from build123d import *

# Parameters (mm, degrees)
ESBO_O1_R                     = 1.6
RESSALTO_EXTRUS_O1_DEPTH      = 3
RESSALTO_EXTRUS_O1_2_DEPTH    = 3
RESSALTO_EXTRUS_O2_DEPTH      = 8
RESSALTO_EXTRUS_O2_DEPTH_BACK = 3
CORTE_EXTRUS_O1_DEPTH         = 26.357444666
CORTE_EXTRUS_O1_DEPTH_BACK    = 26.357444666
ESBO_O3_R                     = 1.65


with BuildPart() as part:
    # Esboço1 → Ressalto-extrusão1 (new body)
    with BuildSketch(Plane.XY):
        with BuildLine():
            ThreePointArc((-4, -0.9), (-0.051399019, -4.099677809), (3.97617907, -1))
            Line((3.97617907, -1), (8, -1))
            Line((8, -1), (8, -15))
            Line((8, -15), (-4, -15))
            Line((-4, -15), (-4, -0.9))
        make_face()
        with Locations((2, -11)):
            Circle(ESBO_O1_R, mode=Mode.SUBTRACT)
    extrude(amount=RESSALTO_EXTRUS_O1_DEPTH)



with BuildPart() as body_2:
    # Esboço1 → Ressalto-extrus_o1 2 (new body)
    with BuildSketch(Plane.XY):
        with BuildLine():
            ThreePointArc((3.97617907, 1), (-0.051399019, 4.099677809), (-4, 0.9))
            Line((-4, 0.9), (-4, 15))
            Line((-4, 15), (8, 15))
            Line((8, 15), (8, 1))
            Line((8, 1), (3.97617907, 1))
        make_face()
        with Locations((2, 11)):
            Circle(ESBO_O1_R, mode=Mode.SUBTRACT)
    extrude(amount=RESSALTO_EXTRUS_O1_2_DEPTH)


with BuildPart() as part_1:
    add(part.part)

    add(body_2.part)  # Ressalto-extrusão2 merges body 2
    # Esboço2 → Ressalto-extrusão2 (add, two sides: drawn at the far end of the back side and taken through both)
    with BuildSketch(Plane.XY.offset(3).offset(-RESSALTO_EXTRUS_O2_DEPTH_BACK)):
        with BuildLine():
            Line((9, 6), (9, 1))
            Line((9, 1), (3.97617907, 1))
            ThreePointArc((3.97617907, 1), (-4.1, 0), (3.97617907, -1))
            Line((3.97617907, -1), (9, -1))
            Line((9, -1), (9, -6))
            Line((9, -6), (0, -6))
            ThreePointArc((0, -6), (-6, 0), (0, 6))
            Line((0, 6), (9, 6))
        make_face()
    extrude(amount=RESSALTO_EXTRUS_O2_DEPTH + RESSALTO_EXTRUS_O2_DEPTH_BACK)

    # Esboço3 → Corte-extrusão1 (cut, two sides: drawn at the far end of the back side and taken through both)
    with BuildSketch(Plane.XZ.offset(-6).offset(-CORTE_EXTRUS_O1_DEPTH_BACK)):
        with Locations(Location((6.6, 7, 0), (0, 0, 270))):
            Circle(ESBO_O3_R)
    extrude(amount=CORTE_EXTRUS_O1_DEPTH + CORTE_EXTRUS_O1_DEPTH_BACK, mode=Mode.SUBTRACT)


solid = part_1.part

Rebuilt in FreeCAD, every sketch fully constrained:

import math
import FreeCAD as App
import Part
import Sketcher

V = App.Vector
Q = App.Units.Quantity

doc = App.newDocument("Part")
body = doc.addObject("PartDesign::Body", "Body")

# Sketch on XY plane
sketch1 = doc.addObject("Sketcher::SketchObject", "Sketch")
body.addObject(sketch1)
sketch1.AttachmentSupport = (doc.XY_Plane, [""])
sketch1.MapMode = "FlatFace"
sketch1.addGeometry(Part.ArcOfCircle(Part.Circle(V(0, 0, 0), V(0, 0, 1), 4.1), math.radians(-167), math.radians(-14)), False)
sketch1.addGeometry(Part.LineSegment(V(-4, -0.9, 0), V(-4, -15, 0)), False)
sketch1.addGeometry(Part.LineSegment(V(-4, -15, 0), V(8, -15, 0)), False)
sketch1.addGeometry(Part.LineSegment(V(8, -15, 0), V(8, -1, 0)), False)
sketch1.addGeometry(Part.LineSegment(V(8, -1, 0), V(4, -1, 0)), False)
sketch1.addGeometry(Part.Circle(V(2, -11, 0), V(0, 0, 1), 1.6), False)
sketch1.addConstraint(Sketcher.Constraint("Coincident", 0, 1, 1, 1))
sketch1.addConstraint(Sketcher.Constraint("Coincident", 1, 2, 2, 1))
sketch1.addConstraint(Sketcher.Constraint("Coincident", 2, 2, 3, 1))
sketch1.addConstraint(Sketcher.Constraint("Coincident", 3, 2, 4, 1))
sketch1.addConstraint(Sketcher.Constraint("Coincident", 4, 2, 0, 2))
sketch1.addConstraint(Sketcher.Constraint("Vertical", 1))
sketch1.addConstraint(Sketcher.Constraint("Horizontal", 2))
sketch1.addConstraint(Sketcher.Constraint("Vertical", 3))
sketch1.addConstraint(Sketcher.Constraint("Horizontal", 4))
sketch1.addConstraint(Sketcher.Constraint("Coincident", 0, 3, -1, 1))
sketch1.addConstraint(Sketcher.Constraint("Diameter", 5, Q("3.2 mm")))
sketch1.addConstraint(Sketcher.Constraint("Radius", 0, Q("4.1 mm")))
sketch1.addConstraint(Sketcher.Constraint("DistanceX", 2, 1, 2, 2, Q("12 mm")))
sketch1.addConstraint(Sketcher.Constraint("DistanceY", 3, 1, 3, 2, Q("14 mm")))
sketch1.addConstraint(Sketcher.Constraint("DistanceY", 1, 2, 1, 1, Q("14.1 mm")))
sketch1.addConstraint(Sketcher.Constraint("DistanceX", -1, 1, 5, 3, Q("2 mm")))
sketch1.addConstraint(Sketcher.Constraint("DistanceY", 5, 3, -1, 1, Q("11 mm")))
sketch1.addConstraint(Sketcher.Constraint("DistanceX", 0, 1, -1, 1, Q("4 mm")))
pad1 = doc.addObject("PartDesign::Pad", "Pad")
body.addObject(pad1)
pad1.Profile = sketch1
pad1.Length = 3
body2 = doc.addObject("PartDesign::Body", "Body001")

# Sketch on XY plane
sketch2 = doc.addObject("Sketcher::SketchObject", "Sketch001")
body2.addObject(sketch2)
sketch2.AttachmentSupport = (doc.getObject("XY_Plane001"), [""])
sketch2.MapMode = "FlatFace"
sketch2.addGeometry(Part.ArcOfCircle(Part.Circle(V(0, 0, 0), V(0, 0, 1), 4.1), math.radians(14), math.radians(167)), False)
sketch2.addGeometry(Part.LineSegment(V(4, 1, 0), V(8, 1, 0)), False)
sketch2.addGeometry(Part.LineSegment(V(8, 1, 0), V(8, 15, 0)), False)
sketch2.addGeometry(Part.LineSegment(V(8, 15, 0), V(-4, 15, 0)), False)
sketch2.addGeometry(Part.LineSegment(V(-4, 15, 0), V(-4, 0.9, 0)), False)
sketch2.addGeometry(Part.Circle(V(2, 11, 0), V(0, 0, 1), 1.6), False)
sketch2.addConstraint(Sketcher.Constraint("Coincident", 0, 1, 1, 1))
sketch2.addConstraint(Sketcher.Constraint("Coincident", 1, 2, 2, 1))
sketch2.addConstraint(Sketcher.Constraint("Coincident", 2, 2, 3, 1))
sketch2.addConstraint(Sketcher.Constraint("Coincident", 3, 2, 4, 1))
sketch2.addConstraint(Sketcher.Constraint("Coincident", 4, 2, 0, 2))
sketch2.addConstraint(Sketcher.Constraint("Horizontal", 1))
sketch2.addConstraint(Sketcher.Constraint("Vertical", 2))
sketch2.addConstraint(Sketcher.Constraint("Horizontal", 3))
sketch2.addConstraint(Sketcher.Constraint("Vertical", 4))
sketch2.addConstraint(Sketcher.Constraint("Coincident", 0, 3, -1, 1))
sketch2.addConstraint(Sketcher.Constraint("Diameter", 5, Q("3.2 mm")))
sketch2.addConstraint(Sketcher.Constraint("Radius", 0, Q("4.1 mm")))
sketch2.addConstraint(Sketcher.Constraint("DistanceX", 3, 2, 3, 1, Q("12 mm")))
sketch2.addConstraint(Sketcher.Constraint("DistanceY", 2, 1, 2, 2, Q("14 mm")))
sketch2.addConstraint(Sketcher.Constraint("DistanceY", 4, 2, 4, 1, Q("14.1 mm")))
sketch2.addConstraint(Sketcher.Constraint("DistanceX", -1, 1, 5, 3, Q("2 mm")))
sketch2.addConstraint(Sketcher.Constraint("DistanceY", -1, 1, 5, 3, Q("11 mm")))
sketch2.addConstraint(Sketcher.Constraint("DistanceY", -1, 1, 0, 1, Q("1 mm")))
pad2 = doc.addObject("PartDesign::Pad", "Pad001")
body2.addObject(pad2)
pad2.Profile = sketch2
pad2.Length = 3
body.AllowCompound = True
doc.recompute()

boolean = doc.addObject("PartDesign::Boolean", "Boolean")
body.addObject(boolean)
boolean.Type = "Fuse"
boolean.addObjects([body2])

# Sketch on XY plane
sketch3 = doc.addObject("Sketcher::SketchObject", "Sketch002")
body.addObject(sketch3)
sketch3.AttachmentSupport = (doc.XY_Plane, [""])
sketch3.MapMode = "FlatFace"
sketch3.AttachmentOffset = App.Placement(V(0, 0, 3), App.Rotation())
sketch3.addGeometry(Part.LineSegment(V(9, 1, 0), V(9, 6, 0)), False)
sketch3.addGeometry(Part.LineSegment(V(9, 6, 0), V(0, 6, 0)), False)
sketch3.addGeometry(Part.ArcOfCircle(Part.Circle(V(0, 0, 0), V(0, 0, 1), 6), math.radians(90), math.radians(270)), False)
sketch3.addGeometry(Part.LineSegment(V(0, -6, 0), V(9, -6, 0)), False)
sketch3.addGeometry(Part.LineSegment(V(9, -6, 0), V(9, -1, 0)), False)
sketch3.addGeometry(Part.LineSegment(V(9, -1, 0), V(4, -1, 0)), False)
sketch3.addGeometry(Part.ArcOfCircle(Part.Circle(V(0, 0, 0), V(0, 0, 1), 4.1), math.radians(14), math.radians(346)), False)
sketch3.addGeometry(Part.LineSegment(V(4, 1, 0), V(9, 1, 0)), False)
sketch3.addConstraint(Sketcher.Constraint("Coincident", 0, 2, 1, 1))
sketch3.addConstraint(Sketcher.Constraint("Tangent", 1, 2, 2, 1))
sketch3.addConstraint(Sketcher.Constraint("Tangent", 2, 2, 3, 1))
sketch3.addConstraint(Sketcher.Constraint("Coincident", 3, 2, 4, 1))
sketch3.addConstraint(Sketcher.Constraint("Coincident", 4, 2, 5, 1))
sketch3.addConstraint(Sketcher.Constraint("Coincident", 5, 2, 6, 2))
sketch3.addConstraint(Sketcher.Constraint("Coincident", 6, 1, 7, 1))
sketch3.addConstraint(Sketcher.Constraint("Coincident", 7, 2, 0, 1))
sketch3.addConstraint(Sketcher.Constraint("Vertical", 0))
sketch3.addConstraint(Sketcher.Constraint("Horizontal", 1))
sketch3.addConstraint(Sketcher.Constraint("Horizontal", 3))
sketch3.addConstraint(Sketcher.Constraint("Vertical", 4))
sketch3.addConstraint(Sketcher.Constraint("Horizontal", 5))
sketch3.addConstraint(Sketcher.Constraint("Horizontal", 7))
sketch3.addConstraint(Sketcher.Constraint("Coincident", 2, 3, -1, 1))
sketch3.addConstraint(Sketcher.Constraint("Coincident", 6, 3, -1, 1))
sketch3.addConstraint(Sketcher.Constraint("Symmetric", 4, 2, 7, 2, -1))
sketch3.addConstraint(Sketcher.Constraint("Radius", 2, Q("6 mm")))
sketch3.addConstraint(Sketcher.Constraint("Radius", 6, Q("4.1 mm")))
sketch3.addConstraint(Sketcher.Constraint("DistanceX", 1, 2, 1, 1, Q("9 mm")))
sketch3.addConstraint(Sketcher.Constraint("DistanceY", 0, 1, 0, 2, Q("5 mm")))
pad3 = doc.addObject("PartDesign::Pad", "Pad002")
body.addObject(pad3)
pad3.Profile = sketch3
pad3.Type = "TwoLengths"
pad3.Length = 8
pad3.Length2 = 3

# Sketch on XZ plane
sketch4 = doc.addObject("Sketcher::SketchObject", "Sketch003")
body.addObject(sketch4)
sketch4.AttachmentSupport = (doc.XZ_Plane, [""])
sketch4.MapMode = "FlatFace"
sketch4.AttachmentOffset = App.Placement(V(0, 0, -6), App.Rotation())
sketch4.addGeometry(Part.Circle(V(6.6, 7, 0), V(0, 0, 1), 1.6), False)
sketch4.addConstraint(Sketcher.Constraint("Diameter", 0, Q("3.3 mm")))
sketch4.addConstraint(Sketcher.Constraint("DistanceY", -1, 1, 0, 3, Q("7 mm")))
sketch4.addConstraint(Sketcher.Constraint("DistanceX", -1, 1, 0, 3, Q("6.6 mm")))
pocket1 = doc.addObject("PartDesign::Pocket", "Pocket")
body.addObject(pocket1)
pocket1.Profile = sketch4
pocket1.Type = "ThroughAll"
pocket1.Midplane = True

doc.recompute()
